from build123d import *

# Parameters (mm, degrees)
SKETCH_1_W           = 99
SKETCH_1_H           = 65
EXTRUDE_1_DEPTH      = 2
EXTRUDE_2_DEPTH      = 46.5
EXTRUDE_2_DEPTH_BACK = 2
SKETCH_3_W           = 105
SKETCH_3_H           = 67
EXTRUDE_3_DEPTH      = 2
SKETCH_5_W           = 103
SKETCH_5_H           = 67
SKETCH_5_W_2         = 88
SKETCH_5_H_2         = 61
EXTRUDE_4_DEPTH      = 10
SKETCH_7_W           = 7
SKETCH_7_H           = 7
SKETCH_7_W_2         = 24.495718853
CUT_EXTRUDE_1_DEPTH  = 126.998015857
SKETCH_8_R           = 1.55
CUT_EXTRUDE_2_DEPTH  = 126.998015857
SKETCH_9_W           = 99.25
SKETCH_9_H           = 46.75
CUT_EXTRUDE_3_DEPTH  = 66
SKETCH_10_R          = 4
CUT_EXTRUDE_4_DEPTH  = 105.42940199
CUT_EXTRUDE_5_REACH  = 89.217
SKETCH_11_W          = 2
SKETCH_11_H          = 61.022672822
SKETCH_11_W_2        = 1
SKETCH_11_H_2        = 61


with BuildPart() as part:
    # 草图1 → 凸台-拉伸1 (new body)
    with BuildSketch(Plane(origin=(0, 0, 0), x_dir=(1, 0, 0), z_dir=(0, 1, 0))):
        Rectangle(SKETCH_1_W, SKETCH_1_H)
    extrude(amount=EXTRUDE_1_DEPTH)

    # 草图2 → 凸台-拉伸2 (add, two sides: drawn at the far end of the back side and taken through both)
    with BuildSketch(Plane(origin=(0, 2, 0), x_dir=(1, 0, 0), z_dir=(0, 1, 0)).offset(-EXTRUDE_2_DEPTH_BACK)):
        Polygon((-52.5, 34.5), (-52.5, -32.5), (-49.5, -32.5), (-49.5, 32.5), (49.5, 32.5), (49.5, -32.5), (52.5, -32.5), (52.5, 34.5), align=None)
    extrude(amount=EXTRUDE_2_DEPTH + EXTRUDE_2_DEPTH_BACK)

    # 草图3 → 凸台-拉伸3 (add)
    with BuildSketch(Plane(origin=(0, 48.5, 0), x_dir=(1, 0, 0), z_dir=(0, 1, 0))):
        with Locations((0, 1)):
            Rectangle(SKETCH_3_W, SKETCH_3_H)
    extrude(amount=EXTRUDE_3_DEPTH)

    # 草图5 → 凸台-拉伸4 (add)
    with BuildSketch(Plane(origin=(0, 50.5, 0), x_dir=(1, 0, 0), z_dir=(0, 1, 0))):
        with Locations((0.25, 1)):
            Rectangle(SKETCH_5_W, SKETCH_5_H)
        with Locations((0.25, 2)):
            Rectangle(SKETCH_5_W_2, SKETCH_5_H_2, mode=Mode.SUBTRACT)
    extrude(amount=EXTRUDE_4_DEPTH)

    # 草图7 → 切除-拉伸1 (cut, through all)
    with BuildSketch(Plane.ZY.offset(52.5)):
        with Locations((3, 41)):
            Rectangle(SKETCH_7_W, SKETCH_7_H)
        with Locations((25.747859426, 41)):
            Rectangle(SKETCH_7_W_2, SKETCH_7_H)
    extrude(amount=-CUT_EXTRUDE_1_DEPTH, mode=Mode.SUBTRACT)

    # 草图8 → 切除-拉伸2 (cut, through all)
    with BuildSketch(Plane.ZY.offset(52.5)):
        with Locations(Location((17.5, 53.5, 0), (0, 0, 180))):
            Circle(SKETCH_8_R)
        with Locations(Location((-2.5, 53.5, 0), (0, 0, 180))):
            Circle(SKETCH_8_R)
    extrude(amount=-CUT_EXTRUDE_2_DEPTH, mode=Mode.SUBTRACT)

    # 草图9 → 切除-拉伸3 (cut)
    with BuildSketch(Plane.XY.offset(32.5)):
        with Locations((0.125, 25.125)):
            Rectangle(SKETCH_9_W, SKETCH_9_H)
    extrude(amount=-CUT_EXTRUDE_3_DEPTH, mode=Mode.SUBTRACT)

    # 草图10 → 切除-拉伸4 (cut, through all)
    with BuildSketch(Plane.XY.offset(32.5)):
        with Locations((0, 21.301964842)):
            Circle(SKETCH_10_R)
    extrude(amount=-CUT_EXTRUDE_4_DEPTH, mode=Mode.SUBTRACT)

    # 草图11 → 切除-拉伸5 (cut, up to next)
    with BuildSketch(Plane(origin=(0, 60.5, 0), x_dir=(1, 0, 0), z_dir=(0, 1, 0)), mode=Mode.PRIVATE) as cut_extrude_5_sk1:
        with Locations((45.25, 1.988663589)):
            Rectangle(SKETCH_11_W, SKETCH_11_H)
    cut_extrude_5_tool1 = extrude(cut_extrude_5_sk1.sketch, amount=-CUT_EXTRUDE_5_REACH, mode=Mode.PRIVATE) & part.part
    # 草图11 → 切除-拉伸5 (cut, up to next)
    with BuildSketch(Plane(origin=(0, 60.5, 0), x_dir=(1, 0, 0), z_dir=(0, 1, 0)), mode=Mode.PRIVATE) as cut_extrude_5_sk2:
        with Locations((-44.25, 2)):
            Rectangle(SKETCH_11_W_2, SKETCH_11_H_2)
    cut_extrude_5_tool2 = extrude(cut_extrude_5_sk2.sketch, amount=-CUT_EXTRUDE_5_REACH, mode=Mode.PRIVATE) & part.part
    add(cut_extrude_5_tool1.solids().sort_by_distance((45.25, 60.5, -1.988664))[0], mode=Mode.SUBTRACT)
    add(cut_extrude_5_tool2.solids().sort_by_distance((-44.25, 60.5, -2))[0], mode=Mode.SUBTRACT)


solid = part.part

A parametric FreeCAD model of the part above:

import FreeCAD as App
import Part
import Sketcher

V = App.Vector

doc = App.newDocument("Part")
body = doc.addObject("PartDesign::Body", "Body")

# Sketch on XZ plane
sketch1 = body.newObject("Sketcher::SketchObject", "Sketch")
sketch1.AttachmentSupport = (doc.getObject("XZ_Plane"), [""])
sketch1.MapMode = "FlatFace"
sketch1.addGeometry([
    Part.LineSegment(V(-50, -32, 0), V(-50, 32, 0)),
    Part.LineSegment(V(-50, 32, 0), V(50, 32, 0)),
    Part.LineSegment(V(50, 32, 0), V(50, -32, 0)),
    Part.LineSegment(V(50, -32, 0), V(-50, -32, 0)),
], False)
sketch1.addConstraint([
    Sketcher.Constraint("Coincident", 0, 2, 1, 1),
    Sketcher.Constraint("Coincident", 1, 2, 2, 1),
    Sketcher.Constraint("Coincident", 2, 2, 3, 1),
    Sketcher.Constraint("Coincident", 3, 2, 0, 1),
    Sketcher.Constraint("Vertical", 0),
    Sketcher.Constraint("Horizontal", 1),
    Sketcher.Constraint("Vertical", 2),
    Sketcher.Constraint("Horizontal", 3),
    Sketcher.Constraint("Symmetric", 0, 2, 2, 2, -1, 1),
    Sketcher.Constraint("DistanceX", 1, 1, 1, 2, 99.0),
    Sketcher.Constraint("DistanceY", 0, 1, 0, 2, 65.0),
])
pad1 = body.newObject("PartDesign::Pad", "Pad")
pad1.Profile = sketch1
pad1.Length = 2
pad1.Reversed = True

# Sketch on XZ plane
sketch2 = body.newObject("Sketcher::SketchObject", "Sketch001")
sketch2.AttachmentSupport = (doc.getObject("XZ_Plane"), [""])
sketch2.MapMode = "FlatFace"
sketch2.AttachmentOffset = App.Placement(V(0, 0, -2), App.Rotation())
sketch2.addGeometry([
    Part.LineSegment(V(-52.5, -34.5, 0), V(-52.5, 32.5, 0)),  # 0
    Part.LineSegment(V(-52.5, 32.5, 0), V(-49.5, 32.5, 0)),  # 1
    Part.LineSegment(V(-49.5, 32.5, 0), V(-49.5, -32.5, 0)),  # 2
    Part.LineSegment(V(-49.5, -32.5, 0), V(49.5, -32.5, 0)),  # 3
    Part.LineSegment(V(49.5, -32.5, 0), V(49.5, 32.5, 0)),  # 4
    Part.LineSegment(V(49.5, 32.5, 0), V(52.5, 32.5, 0)),  # 5
    Part.LineSegment(V(52.5, 32.5, 0), V(52.5, -34.5, 0)),  # 6
    Part.LineSegment(V(52.5, -34.5, 0), V(-52.5, -34.5, 0)),  # 7
], False)
sketch2.addConstraint([
    Sketcher.Constraint("Coincident", 0, 2, 1, 1),
    Sketcher.Constraint("Coincident", 1, 2, 2, 1),
    Sketcher.Constraint("Coincident", 2, 2, 3, 1),
    Sketcher.Constraint("Coincident", 3, 2, 4, 1),
    Sketcher.Constraint("Coincident", 4, 2, 5, 1),
    Sketcher.Constraint("Coincident", 5, 2, 6, 1),
    Sketcher.Constraint("Coincident", 6, 2, 7, 1),
    Sketcher.Constraint("Coincident", 7, 2, 0, 1),
    Sketcher.Constraint("Vertical", 0),
    Sketcher.Constraint("Horizontal", 1),
    Sketcher.Constraint("Vertical", 2),
    Sketcher.Constraint("Horizontal", 3),
    Sketcher.Constraint("Vertical", 4),
    Sketcher.Constraint("Horizontal", 5),
    Sketcher.Constraint("Vertical", 6),
    Sketcher.Constraint("Horizontal", 7),
    Sketcher.Constraint("Symmetric", 1, 2, 3, 2, -1, 1),
    Sketcher.Constraint("Symmetric", 0, 2, 5, 2, -2),
    Sketcher.Constraint("DistanceX", 1, 1, 1, 2, 3.0),
    Sketcher.Constraint("DistanceX", 3, 1, 3, 2, 99.0),
    Sketcher.Constraint("DistanceY", 0, 1, 0, 2, 67.0),
    Sketcher.Constraint("DistanceY", 2, 2, 2, 1, 65.0),
])
pad2 = body.newObject("PartDesign::Pad", "Pad001")
pad2.Profile = sketch2
pad2.Type = "TwoLengths"
pad2.Length = 46.5
pad2.Length2 = 2
pad2.Reversed = True

# Sketch on XZ plane
sketch3 = body.newObject("Sketcher::SketchObject", "Sketch002")
sketch3.AttachmentSupport = (doc.getObject("XZ_Plane"), [""])
sketch3.MapMode = "FlatFace"
sketch3.AttachmentOffset = App.Placement(V(0, 0, -48.5), App.Rotation())
sketch3.addGeometry([
    Part.LineSegment(V(-52, -34, 0), V(-52, 32, 0)),
    Part.LineSegment(V(-52, 32, 0), V(52, 32, 0)),
    Part.LineSegment(V(52, 32, 0), V(52, -34, 0)),
    Part.LineSegment(V(52, -34, 0), V(-52, -34, 0)),
], False)
sketch3.addConstraint([
    Sketcher.Constraint("Coincident", 0, 2, 1, 1),
    Sketcher.Constraint("Coincident", 1, 2, 2, 1),
    Sketcher.Constraint("Coincident", 2, 2, 3, 1),
    Sketcher.Constraint("Coincident", 3, 2, 0, 1),
    Sketcher.Constraint("Vertical", 0),
    Sketcher.Constraint("Horizontal", 1),
    Sketcher.Constraint("Vertical", 2),
    Sketcher.Constraint("Horizontal", 3),
    Sketcher.Constraint("DistanceX", 1, 1, 1, 2, 105.0),
    Sketcher.Constraint("DistanceY", 0, 1, 0, 2, 67.0),
    Sketcher.Constraint("DistanceX", 0, 2, -1, 1, 52.5),
    Sketcher.Constraint("DistanceY", -1, 1, 0, 2, 32.5),
])
pad3 = body.newObject("PartDesign::Pad", "Pad002")
pad3.Profile = sketch3
pad3.Length = 2
pad3.Reversed = True

# Sketch on XZ plane
sketch4 = body.newObject("Sketcher::SketchObject", "Sketch003")
sketch4.AttachmentSupport = (doc.getObject("XZ_Plane"), [""])
sketch4.MapMode = "FlatFace"
sketch4.AttachmentOffset = App.Placement(V(0, 0, -50.5), App.Rotation())
sketch4.addGeometry([
    Part.LineSegment(V(-51, -34, 0), V(-51, 32, 0)),  # 0
    Part.LineSegment(V(-51, 32, 0), V(52, 32, 0)),  # 1
    Part.LineSegment(V(52, 32, 0), V(52, -34, 0)),  # 2
    Part.LineSegment(V(52, -34, 0), V(-51, -34, 0)),  # 3
    Part.LineSegment(V(44, 28, 0), V(-44, 28, 0)),  # 4
    Part.LineSegment(V(-44, 28, 0), V(-44, -32, 0)),  # 5
    Part.LineSegment(V(-44, -32, 0), V(44, -32, 0)),  # 6
    Part.LineSegment(V(44, -32, 0), V(44, 28, 0)),  # 7
], False)
sketch4.addConstraint([
    Sketcher.Constraint("Coincident", 0, 2, 1, 1),
    Sketcher.Constraint("Coincident", 1, 2, 2, 1),
    Sketcher.Constraint("Coincident", 2, 2, 3, 1),
    Sketcher.Constraint("Coincident", 3, 2, 0, 1),
    Sketcher.Constraint("Coincident", 4, 2, 5, 1),
    Sketcher.Constraint("Coincident", 5, 2, 6, 1),
    Sketcher.Constraint("Coincident", 6, 2, 7, 1),
    Sketcher.Constraint("Coincident", 7, 2, 4, 1),
    Sketcher.Constraint("Vertical", 0),
    Sketcher.Constraint("Horizontal", 1),
    Sketcher.Constraint("Vertical", 2),
    Sketcher.Constraint("Horizontal", 3),
    Sketcher.Constraint("Horizontal", 4),
    Sketcher.Constraint("Vertical", 5),
    Sketcher.Constraint("Horizontal", 6),
    Sketcher.Constraint("Vertical", 7),
    Sketcher.Constraint("DistanceX", 1, 1, 1, 2, 103.0),
    Sketcher.Constraint("DistanceX", 4, 2, 4, 1, 88.0),
    Sketcher.Constraint("DistanceY", 0, 1, 0, 2, 67.0),
    Sketcher.Constraint("DistanceY", 5, 2, 5, 1, 61.0),
    Sketcher.Constraint("DistanceY", 4, 2, 0, 2, 4.0),
    Sketcher.Constraint("DistanceY", -1, 1, 0, 2, 32.5),
    Sketcher.Constraint("DistanceX", 0, 2, 4, 2, 7.5),
    Sketcher.Constraint("DistanceX", 0, 2, -1, 1, 51.25),
])
pad4 = body.newObject("PartDesign::Pad", "Pad003")
pad4.Profile = sketch4
pad4.Length = 10
pad4.Reversed = True

# Sketch on YZ plane
sketch5 = body.newObject("Sketcher::SketchObject", "Sketch004")
sketch5.AttachmentSupport = (doc.getObject("YZ_Plane"), [""])
sketch5.MapMode = "FlatFace"
sketch5.AttachmentOffset = App.Placement(V(0, 0, -52.5), App.Rotation())
sketch5.addGeometry([
    Part.LineSegment(V(44, 0, 0), V(38, 0, 0)),  # 0
    Part.LineSegment(V(38, 0, 0), V(38, 6, 0)),  # 1
    Part.LineSegment(V(38, 6, 0), V(44, 6, 0)),  # 2
    Part.LineSegment(V(44, 6, 0), V(44, 0, 0)),  # 3
    Part.LineSegment(V(44, 14, 0), V(38, 14, 0)),  # 4
    Part.LineSegment(V(38, 14, 0), V(38, 38, 0)),  # 5
    Part.LineSegment(V(38, 38, 0), V(44, 38, 0)),  # 6
    Part.LineSegment(V(44, 38, 0), V(44, 14, 0)),  # 7
], False)
sketch5.addConstraint([
    Sketcher.Constraint("Coincident", 0, 2, 1, 1),
    Sketcher.Constraint("Coincident", 1, 2, 2, 1),
    Sketcher.Constraint("Coincident", 2, 2, 3, 1),
    Sketcher.Constraint("Coincident", 3, 2, 0, 1),
    Sketcher.Constraint("Coincident", 4, 2, 5, 1),
    Sketcher.Constraint("Coincident", 5, 2, 6, 1),
    Sketcher.Constraint("Coincident", 6, 2, 7, 1),
    Sketcher.Constraint("Coincident", 7, 2, 4, 1),
    Sketcher.Constraint("Horizontal", 0),
    Sketcher.Constraint("Vertical", 1),
    Sketcher.Constraint("Horizontal", 2),
    Sketcher.Constraint("Vertical", 3),
    Sketcher.Constraint("Horizontal", 4),
    Sketcher.Constraint("Vertical", 5),
    Sketcher.Constraint("Horizontal", 6),
    Sketcher.Constraint("Vertical", 7),
    Sketcher.Constraint("Vertical", 1, 2, 4, 2),
    Sketcher.Constraint("Vertical", 3, 2, 6, 2),
    Sketcher.Constraint("Equal", 6, 1),
    Sketcher.Constraint("DistanceX", 0, 2, 0, 1, 7.0),
    Sketcher.Constraint("DistanceY", 1, 2, 4, 2, 7.0),
    Sketcher.Constraint("DistanceX", -1, 1, 0, 2, 37.5),
    Sketcher.Constraint("DistanceY", 0, 2, -1, 1, 0.5),
    Sketcher.Constraint("DistanceY", 5, 1, 5, 2, 24.495719),
])
pocket1 = body.newObject("PartDesign::Pocket", "Pocket")
pocket1.Profile = sketch5
pocket1.Type = "ThroughAll"
pocket1.Reversed = True

# Sketch on YZ plane
sketch6 = body.newObject("Sketcher::SketchObject", "Sketch005")
sketch6.AttachmentSupport = (doc.getObject("YZ_Plane"), [""])
sketch6.MapMode = "FlatFace"
sketch6.AttachmentOffset = App.Placement(V(0, 0, -52.5), App.Rotation())
sketch6.addGeometry([
    Part.Circle(V(53.5, 17.5, 0), V(0, 0, 1), 1.6),
    Part.Circle(V(53.5, -2.5, 0), V(0, 0, 1), 1.6),
], False)
sketch6.addConstraint([
    Sketcher.Constraint("Equal", 0, 1),
    Sketcher.Constraint("Vertical", 0, 3, 1, 3),
    Sketcher.Constraint("Diameter", 0, 3.1),
    Sketcher.Constraint("DistanceY", 1, 3, 0, 3, 20.0),
    Sketcher.Constraint("DistanceX", -1, 1, 0, 3, 53.5),
    Sketcher.Constraint("DistanceY", -1, 1, 0, 3, 17.5),
])
pocket2 = body.newObject("PartDesign::Pocket", "Pocket001")
pocket2.Profile = sketch6
pocket2.Type = "ThroughAll"
pocket2.Reversed = True

# Sketch on XY plane
sketch7 = body.newObject("Sketcher::SketchObject", "Sketch006")
sketch7.AttachmentSupport = (doc.getObject("XY_Plane"), [""])
sketch7.MapMode = "FlatFace"
sketch7.AttachmentOffset = App.Placement(V(0, 0, 32.5), App.Rotation())
sketch7.addGeometry([
    Part.LineSegment(V(-50, 48, 0), V(-50, 2, 0)),
    Part.LineSegment(V(-50, 2, 0), V(50, 2, 0)),
    Part.LineSegment(V(50, 2, 0), V(50, 48, 0)),
    Part.LineSegment(V(50, 48, 0), V(-50, 48, 0)),
], False)
sketch7.addConstraint([
    Sketcher.Constraint("Coincident", 0, 2, 1, 1),
    Sketcher.Constraint("Coincident", 1, 2, 2, 1),
    Sketcher.Constraint("Coincident", 2, 2, 3, 1),
    Sketcher.Constraint("Coincident", 3, 2, 0, 1),
    Sketcher.Constraint("Vertical", 0),
    Sketcher.Constraint("Horizontal", 1),
    Sketcher.Constraint("Vertical", 2),
    Sketcher.Constraint("Horizontal", 3),
    Sketcher.Constraint("DistanceX", 1, 1, 1, 2, 99.25),
    Sketcher.Constraint("DistanceY", 0, 2, 0, 1, 46.75),
    Sketcher.Constraint("DistanceX", 0, 2, -1, 1, 49.5),
    Sketcher.Constraint("DistanceY", -1, 1, 2, 2, 48.5),
])
pocket3 = body.newObject("PartDesign::Pocket", "Pocket002")
pocket3.Profile = sketch7
pocket3.Length = 66

# Sketch on XY plane
sketch8 = body.newObject("Sketcher::SketchObject", "Sketch007")
sketch8.AttachmentSupport = (doc.getObject("XY_Plane"), [""])
sketch8.MapMode = "FlatFace"
sketch8.AttachmentOffset = App.Placement(V(0, 0, 32.5), App.Rotation())
sketch8.addGeometry(Part.Circle(V(0, 21.3, 0), V(0, 0, 1), 4), False)
sketch8.addConstraint([
    Sketcher.Constraint("PointOnObject", 0, 3, -2),
    Sketcher.Constraint("Diameter", 0, 8.0),
    Sketcher.Constraint("DistanceY", -1, 1, 0, 3, 21.301965),
])
pocket4 = body.newObject("PartDesign::Pocket", "Pocket003")
pocket4.Profile = sketch8
pocket4.Type = "ThroughAll"

# Sketch on XZ plane
sketch9 = body.newObject("Sketcher::SketchObject", "Sketch008")
sketch9.AttachmentSupport = (doc.getObject("XZ_Plane"), [""])
sketch9.MapMode = "FlatFace"
sketch9.AttachmentOffset = App.Placement(V(0, 0, -60.5), App.Rotation())
sketch9.addGeometry([
    Part.LineSegment(V(44.2, -32.5, 0), V(44.2, 28.5, 0)),
    Part.LineSegment(V(44.2, 28.5, 0), V(46.2, 28.5, 0)),
    Part.LineSegment(V(46.2, 28.5, 0), V(46.2, -32.5, 0)),
    Part.LineSegment(V(46.2, -32.5, 0), V(44.2, -32.5, 0)),
], False)
sketch9.addConstraint([
    Sketcher.Constraint("Coincident", 0, 2, 1, 1),
    Sketcher.Constraint("Coincident", 1, 2, 2, 1),
    Sketcher.Constraint("Coincident", 2, 2, 3, 1),
    Sketcher.Constraint("Coincident", 3, 2, 0, 1),
    Sketcher.Constraint("Vertical", 0),
    Sketcher.Constraint("Horizontal", 1),
    Sketcher.Constraint("Vertical", 2),
    Sketcher.Constraint("Horizontal", 3),
    Sketcher.Constraint("DistanceX", 1, 1, 1, 2, 2.0),
    Sketcher.Constraint("DistanceY", 2, 2, -1, 1, 32.5),
    Sketcher.Constraint("DistanceX", -1, 1, 0, 2, 44.25),
    Sketcher.Constraint("DistanceY", 0, 1, 0, 2, 61.022673),
])
pocket5 = body.newObject("PartDesign::Pocket", "Pocket004")
pocket5.Profile = sketch9
pocket5.Length = 12
pocket5.Reversed = True

# Sketch on XZ plane
sketch10 = body.newObject("Sketcher::SketchObject", "Sketch009")
sketch10.AttachmentSupport = (doc.getObject("XZ_Plane"), [""])
sketch10.MapMode = "FlatFace"
sketch10.AttachmentOffset = App.Placement(V(0, 0, -60.5), App.Rotation())
sketch10.addGeometry([
    Part.LineSegment(V(-44.8, -32.5, 0), V(-44.8, 28.5, 0)),
    Part.LineSegment(V(-44.8, 28.5, 0), V(-43.8, 28.5, 0)),
    Part.LineSegment(V(-43.8, 28.5, 0), V(-43.8, -32.5, 0)),
    Part.LineSegment(V(-43.8, -32.5, 0), V(-44.8, -32.5, 0)),
], False)
sketch10.addConstraint([
    Sketcher.Constraint("Coincident", 0, 2, 1, 1),
    Sketcher.Constraint("Coincident", 1, 2, 2, 1),
    Sketcher.Constraint("Coincident", 2, 2, 3, 1),
    Sketcher.Constraint("Coincident", 3, 2, 0, 1),
    Sketcher.Constraint("Vertical", 0),
    Sketcher.Constraint("Horizontal", 1),
    Sketcher.Constraint("Vertical", 2),
    Sketcher.Constraint("Horizontal", 3),
    Sketcher.Constraint("DistanceX", 1, 1, 1, 2, 1.0),
    Sketcher.Constraint("DistanceY", 0, 1, 0, 2, 61.0),
    Sketcher.Constraint("DistanceY", -1, 1, 0, 2, 28.5),
    Sketcher.Constraint("DistanceX", 0, 2, -1, 1, 44.75),
])
pocket6 = body.newObject("PartDesign::Pocket", "Pocket005")
pocket6.Profile = sketch10
pocket6.Length = 12
pocket6.Reversed = True

doc.recompute()
